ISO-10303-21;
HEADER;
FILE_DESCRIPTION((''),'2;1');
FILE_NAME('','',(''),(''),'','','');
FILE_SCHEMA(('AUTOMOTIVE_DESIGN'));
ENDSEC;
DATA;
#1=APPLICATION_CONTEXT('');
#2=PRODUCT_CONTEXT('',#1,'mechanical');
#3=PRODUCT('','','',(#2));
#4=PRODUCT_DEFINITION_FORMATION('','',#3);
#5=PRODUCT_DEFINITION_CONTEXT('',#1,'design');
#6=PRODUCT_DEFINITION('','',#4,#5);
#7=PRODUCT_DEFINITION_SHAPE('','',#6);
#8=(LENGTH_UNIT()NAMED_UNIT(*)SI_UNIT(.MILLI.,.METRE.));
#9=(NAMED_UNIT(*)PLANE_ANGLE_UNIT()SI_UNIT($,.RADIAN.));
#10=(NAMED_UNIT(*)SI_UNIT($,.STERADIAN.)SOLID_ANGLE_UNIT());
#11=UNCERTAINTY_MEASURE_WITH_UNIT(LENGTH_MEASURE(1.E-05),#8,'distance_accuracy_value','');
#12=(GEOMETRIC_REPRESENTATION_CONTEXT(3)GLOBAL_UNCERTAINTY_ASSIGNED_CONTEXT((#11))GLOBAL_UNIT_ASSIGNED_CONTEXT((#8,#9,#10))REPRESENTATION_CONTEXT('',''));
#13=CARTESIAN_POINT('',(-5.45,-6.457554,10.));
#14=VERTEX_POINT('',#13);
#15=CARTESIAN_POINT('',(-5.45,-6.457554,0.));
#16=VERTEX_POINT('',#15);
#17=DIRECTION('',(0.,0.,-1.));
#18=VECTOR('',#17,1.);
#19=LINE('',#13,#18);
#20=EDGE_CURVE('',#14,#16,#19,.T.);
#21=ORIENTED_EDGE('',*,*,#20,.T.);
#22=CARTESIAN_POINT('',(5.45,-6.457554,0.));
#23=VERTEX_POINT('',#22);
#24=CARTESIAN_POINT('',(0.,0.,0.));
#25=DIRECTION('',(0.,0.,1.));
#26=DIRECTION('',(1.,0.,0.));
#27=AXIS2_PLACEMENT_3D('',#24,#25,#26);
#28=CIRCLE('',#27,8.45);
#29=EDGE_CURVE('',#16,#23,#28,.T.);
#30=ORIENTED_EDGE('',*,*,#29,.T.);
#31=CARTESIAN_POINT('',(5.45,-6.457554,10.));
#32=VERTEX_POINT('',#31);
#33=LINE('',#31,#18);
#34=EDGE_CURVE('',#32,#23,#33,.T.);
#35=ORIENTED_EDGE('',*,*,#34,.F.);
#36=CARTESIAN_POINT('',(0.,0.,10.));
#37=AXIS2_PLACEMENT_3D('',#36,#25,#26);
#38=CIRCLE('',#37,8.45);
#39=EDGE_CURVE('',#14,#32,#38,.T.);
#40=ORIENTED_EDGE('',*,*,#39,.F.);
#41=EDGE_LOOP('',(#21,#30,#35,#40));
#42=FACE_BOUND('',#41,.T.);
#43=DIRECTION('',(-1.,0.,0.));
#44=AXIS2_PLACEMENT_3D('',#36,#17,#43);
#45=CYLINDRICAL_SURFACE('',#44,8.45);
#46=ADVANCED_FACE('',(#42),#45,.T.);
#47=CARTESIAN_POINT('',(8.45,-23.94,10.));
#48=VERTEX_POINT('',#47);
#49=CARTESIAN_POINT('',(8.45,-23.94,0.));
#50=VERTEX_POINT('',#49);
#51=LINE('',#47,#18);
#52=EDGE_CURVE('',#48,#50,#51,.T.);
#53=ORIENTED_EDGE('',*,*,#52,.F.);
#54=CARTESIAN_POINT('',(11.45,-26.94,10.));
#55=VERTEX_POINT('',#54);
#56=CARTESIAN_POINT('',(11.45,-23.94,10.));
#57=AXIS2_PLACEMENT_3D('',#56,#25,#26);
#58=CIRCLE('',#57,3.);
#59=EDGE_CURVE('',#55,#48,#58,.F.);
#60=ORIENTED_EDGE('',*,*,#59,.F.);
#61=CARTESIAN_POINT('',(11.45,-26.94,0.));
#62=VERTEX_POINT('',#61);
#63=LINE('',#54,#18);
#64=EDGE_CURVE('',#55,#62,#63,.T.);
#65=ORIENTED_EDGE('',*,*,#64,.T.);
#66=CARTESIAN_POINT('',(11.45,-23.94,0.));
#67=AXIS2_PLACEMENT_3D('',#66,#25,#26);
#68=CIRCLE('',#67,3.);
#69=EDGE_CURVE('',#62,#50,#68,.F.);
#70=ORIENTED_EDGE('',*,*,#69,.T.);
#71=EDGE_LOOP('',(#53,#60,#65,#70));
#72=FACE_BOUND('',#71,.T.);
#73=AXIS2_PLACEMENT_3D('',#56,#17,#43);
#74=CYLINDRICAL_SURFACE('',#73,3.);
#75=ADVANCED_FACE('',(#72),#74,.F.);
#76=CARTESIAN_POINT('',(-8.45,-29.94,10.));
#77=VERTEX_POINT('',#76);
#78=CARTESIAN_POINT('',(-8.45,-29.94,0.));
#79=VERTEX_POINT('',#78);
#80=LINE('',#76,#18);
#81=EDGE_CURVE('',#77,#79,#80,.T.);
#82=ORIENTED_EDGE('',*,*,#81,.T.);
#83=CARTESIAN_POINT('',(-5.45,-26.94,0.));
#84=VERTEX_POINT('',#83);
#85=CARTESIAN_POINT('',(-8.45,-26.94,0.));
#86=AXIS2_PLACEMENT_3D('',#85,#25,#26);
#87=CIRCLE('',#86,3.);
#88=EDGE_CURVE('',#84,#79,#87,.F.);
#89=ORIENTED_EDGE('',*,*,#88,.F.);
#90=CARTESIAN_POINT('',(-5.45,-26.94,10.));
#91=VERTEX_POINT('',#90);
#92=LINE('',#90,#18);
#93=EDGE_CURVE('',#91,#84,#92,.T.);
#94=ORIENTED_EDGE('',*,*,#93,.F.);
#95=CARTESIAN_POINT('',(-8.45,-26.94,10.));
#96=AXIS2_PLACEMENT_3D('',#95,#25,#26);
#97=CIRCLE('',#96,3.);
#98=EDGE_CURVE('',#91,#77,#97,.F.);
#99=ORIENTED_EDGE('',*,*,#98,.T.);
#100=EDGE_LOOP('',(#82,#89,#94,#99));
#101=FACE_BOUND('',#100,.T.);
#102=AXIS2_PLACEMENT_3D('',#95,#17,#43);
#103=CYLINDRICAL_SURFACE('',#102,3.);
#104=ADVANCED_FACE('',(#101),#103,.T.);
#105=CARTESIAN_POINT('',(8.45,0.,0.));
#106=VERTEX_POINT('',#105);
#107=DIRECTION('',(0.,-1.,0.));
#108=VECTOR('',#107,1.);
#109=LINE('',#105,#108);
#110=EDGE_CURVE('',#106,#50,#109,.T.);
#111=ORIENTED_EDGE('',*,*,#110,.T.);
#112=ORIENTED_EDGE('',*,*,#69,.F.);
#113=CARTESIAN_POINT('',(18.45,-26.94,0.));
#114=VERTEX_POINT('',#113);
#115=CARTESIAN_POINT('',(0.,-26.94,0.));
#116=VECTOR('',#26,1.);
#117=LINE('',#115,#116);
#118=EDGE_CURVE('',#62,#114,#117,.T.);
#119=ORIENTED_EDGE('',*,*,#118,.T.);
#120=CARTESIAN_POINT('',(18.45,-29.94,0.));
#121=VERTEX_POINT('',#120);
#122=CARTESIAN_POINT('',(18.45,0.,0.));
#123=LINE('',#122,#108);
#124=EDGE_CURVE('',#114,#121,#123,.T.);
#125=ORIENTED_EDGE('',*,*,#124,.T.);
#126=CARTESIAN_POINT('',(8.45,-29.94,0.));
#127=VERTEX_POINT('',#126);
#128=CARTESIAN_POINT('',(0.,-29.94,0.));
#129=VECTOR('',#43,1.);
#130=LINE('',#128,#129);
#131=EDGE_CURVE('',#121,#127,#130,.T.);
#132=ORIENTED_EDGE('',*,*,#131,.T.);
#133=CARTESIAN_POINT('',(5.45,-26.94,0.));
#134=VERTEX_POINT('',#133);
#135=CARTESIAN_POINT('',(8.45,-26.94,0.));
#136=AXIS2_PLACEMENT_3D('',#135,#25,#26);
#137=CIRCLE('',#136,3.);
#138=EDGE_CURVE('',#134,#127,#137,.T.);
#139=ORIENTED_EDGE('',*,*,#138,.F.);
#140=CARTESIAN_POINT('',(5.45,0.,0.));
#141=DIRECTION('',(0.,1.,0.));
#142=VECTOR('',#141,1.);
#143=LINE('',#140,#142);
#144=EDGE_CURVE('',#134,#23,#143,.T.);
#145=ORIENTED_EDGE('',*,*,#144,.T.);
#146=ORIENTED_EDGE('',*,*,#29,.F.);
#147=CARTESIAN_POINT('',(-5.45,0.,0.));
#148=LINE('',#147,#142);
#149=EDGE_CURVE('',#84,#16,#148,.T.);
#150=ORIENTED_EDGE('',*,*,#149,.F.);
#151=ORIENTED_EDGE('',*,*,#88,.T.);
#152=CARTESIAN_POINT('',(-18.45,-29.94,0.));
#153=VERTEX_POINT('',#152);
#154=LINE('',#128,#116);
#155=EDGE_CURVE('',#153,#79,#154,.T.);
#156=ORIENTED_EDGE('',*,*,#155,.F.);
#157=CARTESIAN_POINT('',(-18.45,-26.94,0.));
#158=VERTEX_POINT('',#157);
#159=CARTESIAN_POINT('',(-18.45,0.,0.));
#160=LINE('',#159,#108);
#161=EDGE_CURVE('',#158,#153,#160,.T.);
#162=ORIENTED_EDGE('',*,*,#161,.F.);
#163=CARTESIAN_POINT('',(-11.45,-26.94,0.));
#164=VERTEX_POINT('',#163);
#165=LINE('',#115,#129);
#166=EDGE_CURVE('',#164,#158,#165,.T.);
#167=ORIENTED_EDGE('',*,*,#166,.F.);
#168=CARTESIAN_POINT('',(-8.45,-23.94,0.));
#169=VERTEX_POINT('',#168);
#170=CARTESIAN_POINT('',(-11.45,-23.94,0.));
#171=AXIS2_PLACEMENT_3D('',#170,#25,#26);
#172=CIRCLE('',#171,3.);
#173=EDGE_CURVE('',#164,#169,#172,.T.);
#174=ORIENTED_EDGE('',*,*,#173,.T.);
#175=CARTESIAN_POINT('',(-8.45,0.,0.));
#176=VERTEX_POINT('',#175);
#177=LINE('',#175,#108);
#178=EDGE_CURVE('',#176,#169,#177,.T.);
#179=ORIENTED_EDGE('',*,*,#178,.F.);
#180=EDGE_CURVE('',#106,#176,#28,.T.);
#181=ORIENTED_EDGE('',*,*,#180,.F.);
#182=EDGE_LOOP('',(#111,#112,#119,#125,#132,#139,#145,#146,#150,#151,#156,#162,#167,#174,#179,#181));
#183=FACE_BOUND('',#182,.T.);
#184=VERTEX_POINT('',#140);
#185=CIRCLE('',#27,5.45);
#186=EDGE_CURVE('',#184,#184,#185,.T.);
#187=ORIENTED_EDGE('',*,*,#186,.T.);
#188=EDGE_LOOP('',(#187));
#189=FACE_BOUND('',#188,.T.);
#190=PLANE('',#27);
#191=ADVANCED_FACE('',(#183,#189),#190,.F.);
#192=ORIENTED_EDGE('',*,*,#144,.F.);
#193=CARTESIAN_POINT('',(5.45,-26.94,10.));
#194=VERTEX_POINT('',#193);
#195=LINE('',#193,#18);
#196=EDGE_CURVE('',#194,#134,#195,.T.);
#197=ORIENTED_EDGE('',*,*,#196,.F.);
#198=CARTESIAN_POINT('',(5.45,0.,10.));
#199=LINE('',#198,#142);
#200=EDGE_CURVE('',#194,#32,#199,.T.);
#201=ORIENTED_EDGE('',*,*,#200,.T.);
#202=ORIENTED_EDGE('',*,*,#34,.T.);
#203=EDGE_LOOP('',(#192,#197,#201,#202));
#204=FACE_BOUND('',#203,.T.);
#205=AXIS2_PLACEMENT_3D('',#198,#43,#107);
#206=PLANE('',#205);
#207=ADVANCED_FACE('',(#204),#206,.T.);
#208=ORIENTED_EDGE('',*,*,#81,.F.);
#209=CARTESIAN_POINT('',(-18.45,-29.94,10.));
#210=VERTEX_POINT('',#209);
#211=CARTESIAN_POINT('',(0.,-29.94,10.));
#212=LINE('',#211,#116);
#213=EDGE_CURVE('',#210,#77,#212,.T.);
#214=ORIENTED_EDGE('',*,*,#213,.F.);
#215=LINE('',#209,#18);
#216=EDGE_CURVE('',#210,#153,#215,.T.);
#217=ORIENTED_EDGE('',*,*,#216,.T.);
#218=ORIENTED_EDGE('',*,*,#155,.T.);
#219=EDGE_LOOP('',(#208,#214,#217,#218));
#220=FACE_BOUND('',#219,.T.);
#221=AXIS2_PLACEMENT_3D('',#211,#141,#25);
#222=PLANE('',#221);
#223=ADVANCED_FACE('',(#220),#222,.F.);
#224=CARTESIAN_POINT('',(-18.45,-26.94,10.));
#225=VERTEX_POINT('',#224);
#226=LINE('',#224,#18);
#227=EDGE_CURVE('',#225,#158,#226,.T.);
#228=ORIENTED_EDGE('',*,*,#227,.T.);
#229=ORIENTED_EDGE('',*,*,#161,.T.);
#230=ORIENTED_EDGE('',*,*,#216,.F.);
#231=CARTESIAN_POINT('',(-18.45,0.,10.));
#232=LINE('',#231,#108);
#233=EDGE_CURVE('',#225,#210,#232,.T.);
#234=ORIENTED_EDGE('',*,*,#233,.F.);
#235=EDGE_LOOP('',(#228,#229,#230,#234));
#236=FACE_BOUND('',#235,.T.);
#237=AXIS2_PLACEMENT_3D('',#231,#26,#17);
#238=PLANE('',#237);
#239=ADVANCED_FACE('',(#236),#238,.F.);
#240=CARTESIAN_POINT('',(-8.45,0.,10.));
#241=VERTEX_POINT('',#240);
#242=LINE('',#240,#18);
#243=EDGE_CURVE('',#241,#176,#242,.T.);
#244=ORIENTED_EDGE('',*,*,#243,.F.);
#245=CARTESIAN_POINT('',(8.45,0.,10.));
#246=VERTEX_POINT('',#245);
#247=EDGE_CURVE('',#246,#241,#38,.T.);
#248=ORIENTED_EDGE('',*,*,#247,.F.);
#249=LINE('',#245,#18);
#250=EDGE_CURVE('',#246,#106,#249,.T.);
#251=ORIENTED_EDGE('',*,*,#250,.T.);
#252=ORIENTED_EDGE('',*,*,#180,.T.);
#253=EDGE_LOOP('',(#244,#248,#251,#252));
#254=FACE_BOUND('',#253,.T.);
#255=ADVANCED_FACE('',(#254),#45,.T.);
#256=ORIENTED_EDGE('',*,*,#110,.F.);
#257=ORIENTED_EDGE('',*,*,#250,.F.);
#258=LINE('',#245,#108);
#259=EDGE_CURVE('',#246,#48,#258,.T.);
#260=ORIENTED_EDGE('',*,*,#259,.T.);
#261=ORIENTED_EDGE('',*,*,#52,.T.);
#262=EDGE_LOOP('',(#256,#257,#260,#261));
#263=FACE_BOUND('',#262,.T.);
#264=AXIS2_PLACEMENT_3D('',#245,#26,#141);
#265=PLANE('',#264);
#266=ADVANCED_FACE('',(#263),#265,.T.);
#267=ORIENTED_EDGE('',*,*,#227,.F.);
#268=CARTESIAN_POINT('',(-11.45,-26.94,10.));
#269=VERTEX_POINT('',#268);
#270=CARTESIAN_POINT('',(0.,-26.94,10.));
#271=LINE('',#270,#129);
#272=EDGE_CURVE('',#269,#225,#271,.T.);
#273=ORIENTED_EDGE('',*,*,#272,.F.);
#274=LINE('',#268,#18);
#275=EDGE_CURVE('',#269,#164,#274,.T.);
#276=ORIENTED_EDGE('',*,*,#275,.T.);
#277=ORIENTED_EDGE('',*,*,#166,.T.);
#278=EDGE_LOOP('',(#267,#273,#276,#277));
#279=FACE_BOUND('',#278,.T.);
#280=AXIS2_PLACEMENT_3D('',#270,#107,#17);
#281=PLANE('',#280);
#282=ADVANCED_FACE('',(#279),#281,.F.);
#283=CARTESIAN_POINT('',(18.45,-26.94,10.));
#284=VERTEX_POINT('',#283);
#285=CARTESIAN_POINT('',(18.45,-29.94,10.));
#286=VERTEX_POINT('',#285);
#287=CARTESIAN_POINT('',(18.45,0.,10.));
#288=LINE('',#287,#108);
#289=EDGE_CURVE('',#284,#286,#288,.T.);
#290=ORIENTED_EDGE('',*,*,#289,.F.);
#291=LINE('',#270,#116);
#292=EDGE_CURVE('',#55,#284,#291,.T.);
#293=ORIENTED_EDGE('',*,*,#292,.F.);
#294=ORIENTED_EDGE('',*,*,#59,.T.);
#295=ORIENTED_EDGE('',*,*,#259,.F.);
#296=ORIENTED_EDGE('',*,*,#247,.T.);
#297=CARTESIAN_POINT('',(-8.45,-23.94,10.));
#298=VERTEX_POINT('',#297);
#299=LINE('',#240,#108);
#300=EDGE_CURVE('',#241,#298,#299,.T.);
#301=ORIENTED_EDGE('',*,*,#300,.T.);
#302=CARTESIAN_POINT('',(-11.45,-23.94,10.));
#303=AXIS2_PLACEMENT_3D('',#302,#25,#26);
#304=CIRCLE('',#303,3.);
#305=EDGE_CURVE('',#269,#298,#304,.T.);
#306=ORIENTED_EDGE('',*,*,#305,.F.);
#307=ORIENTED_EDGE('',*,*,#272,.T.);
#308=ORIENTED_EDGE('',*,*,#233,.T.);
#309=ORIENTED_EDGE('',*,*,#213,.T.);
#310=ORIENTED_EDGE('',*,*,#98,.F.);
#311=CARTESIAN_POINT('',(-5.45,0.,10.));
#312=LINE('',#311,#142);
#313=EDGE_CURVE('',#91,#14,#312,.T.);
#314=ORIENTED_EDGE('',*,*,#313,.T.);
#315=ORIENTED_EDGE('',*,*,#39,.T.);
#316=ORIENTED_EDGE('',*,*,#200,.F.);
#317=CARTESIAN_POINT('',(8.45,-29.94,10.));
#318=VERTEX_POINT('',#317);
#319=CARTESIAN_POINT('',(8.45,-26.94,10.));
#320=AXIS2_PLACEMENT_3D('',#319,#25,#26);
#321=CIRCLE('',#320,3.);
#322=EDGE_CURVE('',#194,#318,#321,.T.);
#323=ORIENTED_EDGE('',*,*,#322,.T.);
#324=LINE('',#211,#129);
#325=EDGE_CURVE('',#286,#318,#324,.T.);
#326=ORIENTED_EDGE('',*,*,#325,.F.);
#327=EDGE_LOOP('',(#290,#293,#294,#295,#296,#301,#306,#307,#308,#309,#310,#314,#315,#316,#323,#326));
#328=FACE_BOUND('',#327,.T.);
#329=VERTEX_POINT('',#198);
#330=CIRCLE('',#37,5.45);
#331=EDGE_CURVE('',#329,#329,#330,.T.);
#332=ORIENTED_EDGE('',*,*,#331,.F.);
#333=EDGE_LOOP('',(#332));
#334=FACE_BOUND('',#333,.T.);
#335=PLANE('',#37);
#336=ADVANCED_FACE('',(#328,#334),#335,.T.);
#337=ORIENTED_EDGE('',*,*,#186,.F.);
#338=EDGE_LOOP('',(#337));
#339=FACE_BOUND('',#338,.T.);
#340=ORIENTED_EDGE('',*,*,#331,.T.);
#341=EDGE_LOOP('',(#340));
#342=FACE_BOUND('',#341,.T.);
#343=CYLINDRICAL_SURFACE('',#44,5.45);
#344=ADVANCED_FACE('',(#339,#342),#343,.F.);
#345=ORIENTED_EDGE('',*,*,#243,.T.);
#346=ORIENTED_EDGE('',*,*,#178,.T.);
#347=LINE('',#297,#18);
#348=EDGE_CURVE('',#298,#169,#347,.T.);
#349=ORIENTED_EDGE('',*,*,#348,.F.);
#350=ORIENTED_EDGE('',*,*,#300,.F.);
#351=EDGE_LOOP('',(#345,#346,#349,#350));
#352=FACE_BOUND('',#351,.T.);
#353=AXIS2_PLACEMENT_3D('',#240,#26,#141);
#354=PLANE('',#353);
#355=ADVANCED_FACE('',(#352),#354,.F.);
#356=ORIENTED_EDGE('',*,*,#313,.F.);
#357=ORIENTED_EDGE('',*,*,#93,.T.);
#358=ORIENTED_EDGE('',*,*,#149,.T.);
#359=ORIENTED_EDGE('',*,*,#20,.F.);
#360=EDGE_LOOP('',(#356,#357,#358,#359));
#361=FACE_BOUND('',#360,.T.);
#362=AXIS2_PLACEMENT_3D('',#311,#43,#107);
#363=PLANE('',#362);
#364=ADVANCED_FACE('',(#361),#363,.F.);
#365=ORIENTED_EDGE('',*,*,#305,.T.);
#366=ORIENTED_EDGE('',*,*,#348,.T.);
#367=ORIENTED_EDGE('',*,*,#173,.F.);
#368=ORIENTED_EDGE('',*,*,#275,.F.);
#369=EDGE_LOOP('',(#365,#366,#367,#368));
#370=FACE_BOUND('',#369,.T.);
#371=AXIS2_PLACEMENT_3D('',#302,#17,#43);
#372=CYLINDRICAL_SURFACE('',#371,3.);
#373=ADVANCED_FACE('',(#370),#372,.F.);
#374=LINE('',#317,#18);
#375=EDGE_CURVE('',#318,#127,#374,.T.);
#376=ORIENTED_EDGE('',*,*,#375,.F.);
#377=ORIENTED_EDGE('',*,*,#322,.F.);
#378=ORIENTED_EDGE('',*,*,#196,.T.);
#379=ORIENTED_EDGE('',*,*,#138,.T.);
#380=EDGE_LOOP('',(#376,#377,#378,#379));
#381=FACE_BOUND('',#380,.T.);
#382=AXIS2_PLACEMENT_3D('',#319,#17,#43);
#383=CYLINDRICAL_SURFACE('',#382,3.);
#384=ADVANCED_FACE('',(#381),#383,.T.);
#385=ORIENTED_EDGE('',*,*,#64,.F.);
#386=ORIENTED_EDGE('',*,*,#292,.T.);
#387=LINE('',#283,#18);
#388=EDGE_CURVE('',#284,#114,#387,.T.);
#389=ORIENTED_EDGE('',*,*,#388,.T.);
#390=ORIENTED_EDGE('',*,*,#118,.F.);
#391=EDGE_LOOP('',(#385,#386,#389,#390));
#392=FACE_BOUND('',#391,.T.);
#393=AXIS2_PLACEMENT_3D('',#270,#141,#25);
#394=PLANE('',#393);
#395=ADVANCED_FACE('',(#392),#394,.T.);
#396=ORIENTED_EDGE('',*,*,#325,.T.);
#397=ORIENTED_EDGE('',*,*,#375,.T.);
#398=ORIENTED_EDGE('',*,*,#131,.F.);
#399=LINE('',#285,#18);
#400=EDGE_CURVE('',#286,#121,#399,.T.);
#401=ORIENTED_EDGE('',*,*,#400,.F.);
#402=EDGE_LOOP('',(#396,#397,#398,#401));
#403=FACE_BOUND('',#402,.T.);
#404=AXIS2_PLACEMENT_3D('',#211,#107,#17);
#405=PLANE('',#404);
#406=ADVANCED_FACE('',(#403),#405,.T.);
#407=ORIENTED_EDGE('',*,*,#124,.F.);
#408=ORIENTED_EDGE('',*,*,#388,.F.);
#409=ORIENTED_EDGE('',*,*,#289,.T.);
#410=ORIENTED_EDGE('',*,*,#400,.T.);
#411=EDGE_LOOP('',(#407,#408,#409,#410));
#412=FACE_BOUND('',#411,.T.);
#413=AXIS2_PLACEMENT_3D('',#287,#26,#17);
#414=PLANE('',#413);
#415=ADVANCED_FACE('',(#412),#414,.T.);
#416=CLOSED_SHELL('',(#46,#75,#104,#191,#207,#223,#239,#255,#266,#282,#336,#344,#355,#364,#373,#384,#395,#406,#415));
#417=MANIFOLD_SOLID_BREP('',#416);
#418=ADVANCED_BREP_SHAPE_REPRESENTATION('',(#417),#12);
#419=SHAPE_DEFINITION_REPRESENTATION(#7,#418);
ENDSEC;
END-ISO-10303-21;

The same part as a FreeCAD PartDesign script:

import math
import FreeCAD as App
import Part
import Sketcher
from FreeCAD import Vector
Q = App.Units.Quantity

doc = App.newDocument("Part")
body = doc.addObject("PartDesign::Body", "Body")

# Sketch on XY plane
sketch1 = body.newObject("Sketcher::SketchObject", "Sketch")
sketch1.AttachmentSupport = (doc.getObject("XY_Plane"), [""])
sketch1.MapMode = "FlatFace"
sketch1.addGeometry(Part.LineSegment(Vector(-5.5, -26.9, 0), Vector(-5.5, -6.5, 0)), False)
sketch1.addGeometry(Part.ArcOfCircle(Part.Circle(Vector(0, 0, 0), Vector(0, 0, 1), 8.4), math.radians(-130), math.radians(-50)), False)
sketch1.addGeometry(Part.LineSegment(Vector(5.5, -6.5, 0), Vector(5.5, -26.9, 0)), False)
sketch1.addGeometry(Part.ArcOfCircle(Part.Circle(Vector(8.4, -26.9, 0), Vector(0, 0, 1), 3), math.radians(180), math.radians(270)), False)
sketch1.addGeometry(Part.LineSegment(Vector(8.4, -29.9, 0), Vector(18.4, -29.9, 0)), False)
sketch1.addGeometry(Part.LineSegment(Vector(18.4, -29.9, 0), Vector(18.4, -26.9, 0)), False)
sketch1.addGeometry(Part.LineSegment(Vector(18.4, -26.9, 0), Vector(11.4, -26.9, 0)), False)
sketch1.addGeometry(Part.ArcOfCircle(Part.Circle(Vector(11.4, -23.9, 0), Vector(0, 0, 1), 3), math.radians(180), math.radians(270)), False)
sketch1.addGeometry(Part.LineSegment(Vector(8.4, -23.9, 0), Vector(8.4, 0, 0)), False)
sketch1.addGeometry(Part.ArcOfCircle(Part.Circle(Vector(0, 0, 0), Vector(0, 0, 1), 8.4), math.radians(0), math.radians(180)), False)
sketch1.addGeometry(Part.LineSegment(Vector(-8.4, 0, 0), Vector(-8.4, -23.9, 0)), False)
sketch1.addGeometry(Part.ArcOfCircle(Part.Circle(Vector(-11.4, -23.9, 0), Vector(0, 0, 1), 3), math.radians(-90), math.radians(0)), False)
sketch1.addGeometry(Part.LineSegment(Vector(-11.4, -26.9, 0), Vector(-18.4, -26.9, 0)), False)
sketch1.addGeometry(Part.LineSegment(Vector(-18.4, -26.9, 0), Vector(-18.4, -29.9, 0)), False)
sketch1.addGeometry(Part.LineSegment(Vector(-18.4, -29.9, 0), Vector(-8.4, -29.9, 0)), False)
sketch1.addGeometry(Part.ArcOfCircle(Part.Circle(Vector(-8.4, -26.9, 0), Vector(0, 0, 1), 3), math.radians(-90), math.radians(0)), False)
sketch1.addGeometry(Part.Circle(Vector(0, 0, 0), Vector(0, 0, 1), 5.5), False)
sketch1.addConstraint(Sketcher.Constraint("Coincident", 0, 2, 1, 1))
sketch1.addConstraint(Sketcher.Constraint("Coincident", 1, 2, 2, 1))
sketch1.addConstraint(Sketcher.Constraint("Tangent", 2, 2, 3, 1))
sketch1.addConstraint(Sketcher.Constraint("Tangent", 3, 2, 4, 1))
sketch1.addConstraint(Sketcher.Constraint("Coincident", 4, 2, 5, 1))
sketch1.addConstraint(Sketcher.Constraint("Coincident", 5, 2, 6, 1))
sketch1.addConstraint(Sketcher.Constraint("Tangent", 6, 2, 7, 2))
sketch1.addConstraint(Sketcher.Constraint("Tangent", 7, 1, 8, 1))
sketch1.addConstraint(Sketcher.Constraint("Tangent", 8, 2, 9, 1))
sketch1.addConstraint(Sketcher.Constraint("Tangent", 9, 2, 10, 1))
sketch1.addConstraint(Sketcher.Constraint("Tangent", 10, 2, 11, 2))
sketch1.addConstraint(Sketcher.Constraint("Tangent", 11, 1, 12, 1))
sketch1.addConstraint(Sketcher.Constraint("Coincident", 12, 2, 13, 1))
sketch1.addConstraint(Sketcher.Constraint("Coincident", 13, 2, 14, 1))
sketch1.addConstraint(Sketcher.Constraint("Tangent", 14, 2, 15, 1))
sketch1.addConstraint(Sketcher.Constraint("Tangent", 15, 2, 0, 1))
sketch1.addConstraint(Sketcher.Constraint("Vertical", 0))
sketch1.addConstraint(Sketcher.Constraint("Vertical", 2))
sketch1.addConstraint(Sketcher.Constraint("Horizontal", 4))
sketch1.addConstraint(Sketcher.Constraint("Vertical", 5))
sketch1.addConstraint(Sketcher.Constraint("Horizontal", 6))
sketch1.addConstraint(Sketcher.Constraint("Vertical", 8))
sketch1.addConstraint(Sketcher.Constraint("Vertical", 10))
sketch1.addConstraint(Sketcher.Constraint("Horizontal", 12))
sketch1.addConstraint(Sketcher.Constraint("Vertical", 13))
sketch1.addConstraint(Sketcher.Constraint("Horizontal", 14))
sketch1.addConstraint(Sketcher.Constraint("Coincident", 1, 3, -1, 1))
sketch1.addConstraint(Sketcher.Constraint("Coincident", 9, 3, -1, 1))
sketch1.addConstraint(Sketcher.Constraint("Coincident", 16, 3, -1, 1))
sketch1.addConstraint(Sketcher.Constraint("Equal", 3, 7))
sketch1.addConstraint(Sketcher.Constraint("Equal", 1, 9))
sketch1.addConstraint(Sketcher.Constraint("Equal", 7, 11))
sketch1.addConstraint(Sketcher.Constraint("Equal", 11, 15))
sketch1.addConstraint(Sketcher.Constraint("Symmetric", 3, 3, 15, 3, -2))
sketch1.addConstraint(Sketcher.Constraint("Symmetric", 5, 2, 12, 2, -2))
sketch1.addConstraint(Sketcher.Constraint("Horizontal", 2, 2, 5, 2))
sketch1.addConstraint(Sketcher.Constraint("Vertical", 3, 2, 7, 1))
sketch1.addConstraint(Sketcher.Constraint("Radius", 3, Q("3 mm")))
sketch1.addConstraint(Sketcher.Constraint("Diameter", 16, Q("10.9 mm")))
sketch1.addConstraint(Sketcher.Constraint("DistanceX", 4, 1, 4, 2, Q("10 mm")))
sketch1.addConstraint(Sketcher.Constraint("Radius", 1, Q("8.45 mm")))
sketch1.addConstraint(Sketcher.Constraint("DistanceY", 8, 1, 8, 2, Q("23.94 mm")))
pad1 = body.newObject("PartDesign::Pad", "Pad")
pad1.Profile = sketch1
pad1.Length = 10

doc.recompute()
